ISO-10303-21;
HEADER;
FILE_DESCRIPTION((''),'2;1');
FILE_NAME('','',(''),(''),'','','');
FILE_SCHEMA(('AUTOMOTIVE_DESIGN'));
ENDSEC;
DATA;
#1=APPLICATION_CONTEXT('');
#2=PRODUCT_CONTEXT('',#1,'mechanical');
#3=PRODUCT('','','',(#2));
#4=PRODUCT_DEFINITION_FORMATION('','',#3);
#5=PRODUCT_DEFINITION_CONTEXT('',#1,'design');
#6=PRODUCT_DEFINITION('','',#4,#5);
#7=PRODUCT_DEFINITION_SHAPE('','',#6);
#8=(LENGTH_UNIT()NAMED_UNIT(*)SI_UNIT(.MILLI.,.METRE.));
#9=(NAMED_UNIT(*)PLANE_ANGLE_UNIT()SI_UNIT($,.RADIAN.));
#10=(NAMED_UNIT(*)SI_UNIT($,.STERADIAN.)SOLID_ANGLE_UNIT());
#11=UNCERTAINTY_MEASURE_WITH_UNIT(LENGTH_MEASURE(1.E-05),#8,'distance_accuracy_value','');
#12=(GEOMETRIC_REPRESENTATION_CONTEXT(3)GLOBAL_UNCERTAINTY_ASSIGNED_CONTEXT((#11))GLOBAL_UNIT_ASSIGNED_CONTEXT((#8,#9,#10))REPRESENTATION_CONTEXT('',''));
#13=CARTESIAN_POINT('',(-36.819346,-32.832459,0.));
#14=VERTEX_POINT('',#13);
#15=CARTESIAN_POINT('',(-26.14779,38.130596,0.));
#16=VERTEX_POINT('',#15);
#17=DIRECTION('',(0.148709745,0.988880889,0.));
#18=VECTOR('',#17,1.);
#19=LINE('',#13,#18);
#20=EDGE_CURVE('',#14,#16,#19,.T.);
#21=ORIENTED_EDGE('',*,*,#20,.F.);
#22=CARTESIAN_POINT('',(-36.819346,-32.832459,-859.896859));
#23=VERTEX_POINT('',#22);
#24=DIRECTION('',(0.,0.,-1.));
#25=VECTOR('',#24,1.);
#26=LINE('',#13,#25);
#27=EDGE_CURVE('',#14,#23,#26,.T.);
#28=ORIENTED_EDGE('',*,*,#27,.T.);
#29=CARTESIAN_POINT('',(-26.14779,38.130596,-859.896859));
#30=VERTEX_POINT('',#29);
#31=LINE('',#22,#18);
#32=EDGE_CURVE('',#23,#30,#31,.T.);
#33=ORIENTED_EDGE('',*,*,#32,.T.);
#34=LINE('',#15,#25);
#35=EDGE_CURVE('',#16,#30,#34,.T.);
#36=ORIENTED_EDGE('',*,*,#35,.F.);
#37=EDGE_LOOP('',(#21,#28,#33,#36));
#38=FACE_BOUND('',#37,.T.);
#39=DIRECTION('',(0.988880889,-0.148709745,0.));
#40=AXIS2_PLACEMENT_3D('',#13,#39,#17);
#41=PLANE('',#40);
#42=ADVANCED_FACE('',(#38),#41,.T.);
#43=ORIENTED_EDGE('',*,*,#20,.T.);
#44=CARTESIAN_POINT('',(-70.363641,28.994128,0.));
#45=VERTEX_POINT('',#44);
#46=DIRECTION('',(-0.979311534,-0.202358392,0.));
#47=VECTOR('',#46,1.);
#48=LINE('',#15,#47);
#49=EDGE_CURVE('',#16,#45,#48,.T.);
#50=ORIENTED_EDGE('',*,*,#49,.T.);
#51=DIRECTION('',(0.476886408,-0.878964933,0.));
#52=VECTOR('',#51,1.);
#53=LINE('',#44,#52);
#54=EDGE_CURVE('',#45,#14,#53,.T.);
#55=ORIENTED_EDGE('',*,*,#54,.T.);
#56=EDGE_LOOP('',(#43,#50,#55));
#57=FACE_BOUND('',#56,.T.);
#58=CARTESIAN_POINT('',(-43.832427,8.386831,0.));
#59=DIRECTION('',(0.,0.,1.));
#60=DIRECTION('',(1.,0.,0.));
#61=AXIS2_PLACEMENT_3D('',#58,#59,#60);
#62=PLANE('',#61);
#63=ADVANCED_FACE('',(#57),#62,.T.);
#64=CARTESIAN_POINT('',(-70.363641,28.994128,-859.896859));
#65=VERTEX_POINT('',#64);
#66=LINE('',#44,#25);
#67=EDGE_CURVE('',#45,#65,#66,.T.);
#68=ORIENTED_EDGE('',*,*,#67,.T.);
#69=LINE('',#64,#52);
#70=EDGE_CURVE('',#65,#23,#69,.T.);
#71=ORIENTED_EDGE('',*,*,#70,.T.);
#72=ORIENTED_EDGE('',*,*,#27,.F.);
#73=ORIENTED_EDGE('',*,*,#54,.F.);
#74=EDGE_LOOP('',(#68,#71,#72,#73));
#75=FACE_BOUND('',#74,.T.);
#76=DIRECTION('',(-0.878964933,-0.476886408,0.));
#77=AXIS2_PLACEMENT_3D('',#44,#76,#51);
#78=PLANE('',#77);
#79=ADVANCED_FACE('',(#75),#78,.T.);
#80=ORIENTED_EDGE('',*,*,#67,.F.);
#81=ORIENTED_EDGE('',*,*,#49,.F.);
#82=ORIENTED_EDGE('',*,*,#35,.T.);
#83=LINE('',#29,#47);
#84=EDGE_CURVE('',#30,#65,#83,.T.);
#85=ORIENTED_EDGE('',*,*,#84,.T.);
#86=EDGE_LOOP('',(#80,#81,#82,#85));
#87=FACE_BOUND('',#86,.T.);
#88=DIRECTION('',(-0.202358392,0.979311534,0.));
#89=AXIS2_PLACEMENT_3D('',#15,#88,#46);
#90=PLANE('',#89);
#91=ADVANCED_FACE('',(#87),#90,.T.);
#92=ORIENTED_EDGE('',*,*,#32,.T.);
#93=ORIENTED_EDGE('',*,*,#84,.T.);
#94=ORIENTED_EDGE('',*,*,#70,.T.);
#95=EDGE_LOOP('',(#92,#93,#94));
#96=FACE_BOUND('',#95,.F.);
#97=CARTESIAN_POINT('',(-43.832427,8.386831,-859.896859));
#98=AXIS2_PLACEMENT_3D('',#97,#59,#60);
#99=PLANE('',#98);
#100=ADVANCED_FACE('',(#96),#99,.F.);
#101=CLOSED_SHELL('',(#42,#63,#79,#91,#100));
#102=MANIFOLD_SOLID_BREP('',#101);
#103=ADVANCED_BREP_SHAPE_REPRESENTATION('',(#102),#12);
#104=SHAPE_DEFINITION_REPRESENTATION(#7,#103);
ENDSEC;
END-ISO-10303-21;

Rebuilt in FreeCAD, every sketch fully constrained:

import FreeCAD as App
import Part
import Sketcher

doc = App.newDocument("Part")
params = doc.addObject("Spreadsheet::Sheet", "Params")
for row, (alias, value) in enumerate([
    ("pad1_length", "859.896859 mm"),
], start=1):
    params.set(f"A{row}", alias)
    params.set(f"B{row}", "=" + value)
    params.setAlias(f"B{row}", alias)

body = doc.addObject("PartDesign::Body", "Body")

sketch1 = doc.addObject("Sketcher::SketchObject", "Sketch")
body.addObject(sketch1)
sketch1.AttachmentSupport = (doc.XY_Plane, [""])
sketch1.MapMode = "FlatFace"
sketch1.addGeometry([
    Part.LineSegment(App.Vector(-26.14779, 38.130596, 0), App.Vector(-70.363641, 28.994128, 0)),
    Part.LineSegment(App.Vector(-70.363641, 28.994128, 0), App.Vector(-36.819346, -32.832459, 0)),
    Part.LineSegment(App.Vector(-36.819346, -32.832459, 0), App.Vector(-26.14779, 38.130596, 0)),
], False)
sketch1.addConstraint([
    Sketcher.Constraint("Coincident", 0, 2, 1, 1),
    Sketcher.Constraint("Coincident", 1, 2, 2, 1),
    Sketcher.Constraint("Coincident", 2, 2, 0, 1),
    Sketcher.Constraint("Distance", 1, 70.34022),
    Sketcher.Constraint("DistanceX", 0, 2, -1, 1, 70.363641),
    Sketcher.Constraint("DistanceY", -1, 1, 0, 2, 28.994128),
    Sketcher.Constraint("DistanceY", 1, 2, -1, 1, 32.832459),
    Sketcher.Constraint("DistanceX", 2, 2, -1, 1, 26.14779),
    Sketcher.Constraint("Distance", 0, 45.149934),
])
pad1 = doc.addObject("PartDesign::Pad", "Pad")
body.addObject(pad1)
pad1.Profile = sketch1
pad1.setExpression("Length", "Params.pad1_length")
pad1.Reversed = True

doc.recompute()
